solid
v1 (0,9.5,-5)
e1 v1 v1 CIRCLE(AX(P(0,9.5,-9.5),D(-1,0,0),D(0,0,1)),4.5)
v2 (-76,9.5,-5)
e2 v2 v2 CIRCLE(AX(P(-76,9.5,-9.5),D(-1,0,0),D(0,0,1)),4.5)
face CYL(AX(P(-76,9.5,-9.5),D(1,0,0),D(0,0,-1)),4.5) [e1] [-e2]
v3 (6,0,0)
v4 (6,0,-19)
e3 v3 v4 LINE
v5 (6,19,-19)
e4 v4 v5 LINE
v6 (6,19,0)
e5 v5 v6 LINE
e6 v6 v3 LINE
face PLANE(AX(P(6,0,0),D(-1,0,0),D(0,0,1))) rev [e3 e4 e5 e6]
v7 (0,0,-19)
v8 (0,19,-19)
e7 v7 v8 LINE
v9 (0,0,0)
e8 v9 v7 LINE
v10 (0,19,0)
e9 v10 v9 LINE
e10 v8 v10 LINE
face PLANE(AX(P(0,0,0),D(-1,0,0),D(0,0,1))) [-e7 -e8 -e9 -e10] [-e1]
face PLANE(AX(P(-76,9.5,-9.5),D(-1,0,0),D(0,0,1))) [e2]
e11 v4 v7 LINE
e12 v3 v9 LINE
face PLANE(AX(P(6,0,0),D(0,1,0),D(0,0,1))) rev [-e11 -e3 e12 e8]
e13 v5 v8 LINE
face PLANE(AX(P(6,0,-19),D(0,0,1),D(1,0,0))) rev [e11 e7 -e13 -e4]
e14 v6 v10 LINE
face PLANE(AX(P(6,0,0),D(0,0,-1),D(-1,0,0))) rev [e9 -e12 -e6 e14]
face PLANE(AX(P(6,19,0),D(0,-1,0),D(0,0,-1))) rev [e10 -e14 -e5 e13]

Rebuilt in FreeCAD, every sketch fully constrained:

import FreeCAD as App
import Part
import Sketcher
Q = App.Units.Quantity

doc = App.newDocument("Part")
body = doc.addObject("PartDesign::Body", "Body")

sketch1 = body.newObject("Sketcher::SketchObject", "Sketch")
sketch1.AttachmentSupport = (doc.getObject("YZ_Plane"), [""])
sketch1.MapMode = "FlatFace"
sketch1.addGeometry(Part.LineSegment(App.Vector(19, 0, 0), App.Vector(0, 0, 0)), False)
sketch1.addGeometry(Part.LineSegment(App.Vector(0, 0, 0), App.Vector(0, -19, 0)), False)
sketch1.addGeometry(Part.LineSegment(App.Vector(0, -19, 0), App.Vector(19, -19, 0)), False)
sketch1.addGeometry(Part.LineSegment(App.Vector(19, -19, 0), App.Vector(19, 0, 0)), False)
sketch1.addConstraint(Sketcher.Constraint("Coincident", 0, 2, 1, 1))
sketch1.addConstraint(Sketcher.Constraint("Coincident", 1, 2, 2, 1))
sketch1.addConstraint(Sketcher.Constraint("Coincident", 2, 2, 3, 1))
sketch1.addConstraint(Sketcher.Constraint("Coincident", 3, 2, 0, 1))
sketch1.addConstraint(Sketcher.Constraint("Horizontal", 0))
sketch1.addConstraint(Sketcher.Constraint("Vertical", 1))
sketch1.addConstraint(Sketcher.Constraint("Horizontal", 2))
sketch1.addConstraint(Sketcher.Constraint("Vertical", 3))
sketch1.addConstraint(Sketcher.Constraint("Coincident", 0, 2, -1, 1))
sketch1.addConstraint(Sketcher.Constraint("Equal", 2, 1))
sketch1.addConstraint(Sketcher.Constraint("DistanceX", 0, 2, 0, 1, Q("19 mm")))
pad1 = body.newObject("PartDesign::Pad", "Pad")
pad1.Profile = sketch1
pad1.Length = 6

sketch2 = body.newObject("Sketcher::SketchObject", "Sketch001")
sketch2.AttachmentSupport = (doc.getObject("YZ_Plane"), [""])
sketch2.MapMode = "FlatFace"
sketch2.addGeometry(Part.Circle(App.Vector(9.5, -9.5, 0), App.Vector(0, 0, 1), 4.5), False)
sketch2.addConstraint(Sketcher.Constraint("Diameter", 0, Q("9 mm")))
sketch2.addConstraint(Sketcher.Constraint("DistanceX", -1, 1, 0, 3, Q("9.5 mm")))
sketch2.addConstraint(Sketcher.Constraint("DistanceY", 0, 3, -1, 1, Q("9.5 mm")))
pad2 = body.newObject("PartDesign::Pad", "Pad001")
pad2.Profile = sketch2
pad2.Length = 76
pad2.Reversed = True

doc.recompute()
